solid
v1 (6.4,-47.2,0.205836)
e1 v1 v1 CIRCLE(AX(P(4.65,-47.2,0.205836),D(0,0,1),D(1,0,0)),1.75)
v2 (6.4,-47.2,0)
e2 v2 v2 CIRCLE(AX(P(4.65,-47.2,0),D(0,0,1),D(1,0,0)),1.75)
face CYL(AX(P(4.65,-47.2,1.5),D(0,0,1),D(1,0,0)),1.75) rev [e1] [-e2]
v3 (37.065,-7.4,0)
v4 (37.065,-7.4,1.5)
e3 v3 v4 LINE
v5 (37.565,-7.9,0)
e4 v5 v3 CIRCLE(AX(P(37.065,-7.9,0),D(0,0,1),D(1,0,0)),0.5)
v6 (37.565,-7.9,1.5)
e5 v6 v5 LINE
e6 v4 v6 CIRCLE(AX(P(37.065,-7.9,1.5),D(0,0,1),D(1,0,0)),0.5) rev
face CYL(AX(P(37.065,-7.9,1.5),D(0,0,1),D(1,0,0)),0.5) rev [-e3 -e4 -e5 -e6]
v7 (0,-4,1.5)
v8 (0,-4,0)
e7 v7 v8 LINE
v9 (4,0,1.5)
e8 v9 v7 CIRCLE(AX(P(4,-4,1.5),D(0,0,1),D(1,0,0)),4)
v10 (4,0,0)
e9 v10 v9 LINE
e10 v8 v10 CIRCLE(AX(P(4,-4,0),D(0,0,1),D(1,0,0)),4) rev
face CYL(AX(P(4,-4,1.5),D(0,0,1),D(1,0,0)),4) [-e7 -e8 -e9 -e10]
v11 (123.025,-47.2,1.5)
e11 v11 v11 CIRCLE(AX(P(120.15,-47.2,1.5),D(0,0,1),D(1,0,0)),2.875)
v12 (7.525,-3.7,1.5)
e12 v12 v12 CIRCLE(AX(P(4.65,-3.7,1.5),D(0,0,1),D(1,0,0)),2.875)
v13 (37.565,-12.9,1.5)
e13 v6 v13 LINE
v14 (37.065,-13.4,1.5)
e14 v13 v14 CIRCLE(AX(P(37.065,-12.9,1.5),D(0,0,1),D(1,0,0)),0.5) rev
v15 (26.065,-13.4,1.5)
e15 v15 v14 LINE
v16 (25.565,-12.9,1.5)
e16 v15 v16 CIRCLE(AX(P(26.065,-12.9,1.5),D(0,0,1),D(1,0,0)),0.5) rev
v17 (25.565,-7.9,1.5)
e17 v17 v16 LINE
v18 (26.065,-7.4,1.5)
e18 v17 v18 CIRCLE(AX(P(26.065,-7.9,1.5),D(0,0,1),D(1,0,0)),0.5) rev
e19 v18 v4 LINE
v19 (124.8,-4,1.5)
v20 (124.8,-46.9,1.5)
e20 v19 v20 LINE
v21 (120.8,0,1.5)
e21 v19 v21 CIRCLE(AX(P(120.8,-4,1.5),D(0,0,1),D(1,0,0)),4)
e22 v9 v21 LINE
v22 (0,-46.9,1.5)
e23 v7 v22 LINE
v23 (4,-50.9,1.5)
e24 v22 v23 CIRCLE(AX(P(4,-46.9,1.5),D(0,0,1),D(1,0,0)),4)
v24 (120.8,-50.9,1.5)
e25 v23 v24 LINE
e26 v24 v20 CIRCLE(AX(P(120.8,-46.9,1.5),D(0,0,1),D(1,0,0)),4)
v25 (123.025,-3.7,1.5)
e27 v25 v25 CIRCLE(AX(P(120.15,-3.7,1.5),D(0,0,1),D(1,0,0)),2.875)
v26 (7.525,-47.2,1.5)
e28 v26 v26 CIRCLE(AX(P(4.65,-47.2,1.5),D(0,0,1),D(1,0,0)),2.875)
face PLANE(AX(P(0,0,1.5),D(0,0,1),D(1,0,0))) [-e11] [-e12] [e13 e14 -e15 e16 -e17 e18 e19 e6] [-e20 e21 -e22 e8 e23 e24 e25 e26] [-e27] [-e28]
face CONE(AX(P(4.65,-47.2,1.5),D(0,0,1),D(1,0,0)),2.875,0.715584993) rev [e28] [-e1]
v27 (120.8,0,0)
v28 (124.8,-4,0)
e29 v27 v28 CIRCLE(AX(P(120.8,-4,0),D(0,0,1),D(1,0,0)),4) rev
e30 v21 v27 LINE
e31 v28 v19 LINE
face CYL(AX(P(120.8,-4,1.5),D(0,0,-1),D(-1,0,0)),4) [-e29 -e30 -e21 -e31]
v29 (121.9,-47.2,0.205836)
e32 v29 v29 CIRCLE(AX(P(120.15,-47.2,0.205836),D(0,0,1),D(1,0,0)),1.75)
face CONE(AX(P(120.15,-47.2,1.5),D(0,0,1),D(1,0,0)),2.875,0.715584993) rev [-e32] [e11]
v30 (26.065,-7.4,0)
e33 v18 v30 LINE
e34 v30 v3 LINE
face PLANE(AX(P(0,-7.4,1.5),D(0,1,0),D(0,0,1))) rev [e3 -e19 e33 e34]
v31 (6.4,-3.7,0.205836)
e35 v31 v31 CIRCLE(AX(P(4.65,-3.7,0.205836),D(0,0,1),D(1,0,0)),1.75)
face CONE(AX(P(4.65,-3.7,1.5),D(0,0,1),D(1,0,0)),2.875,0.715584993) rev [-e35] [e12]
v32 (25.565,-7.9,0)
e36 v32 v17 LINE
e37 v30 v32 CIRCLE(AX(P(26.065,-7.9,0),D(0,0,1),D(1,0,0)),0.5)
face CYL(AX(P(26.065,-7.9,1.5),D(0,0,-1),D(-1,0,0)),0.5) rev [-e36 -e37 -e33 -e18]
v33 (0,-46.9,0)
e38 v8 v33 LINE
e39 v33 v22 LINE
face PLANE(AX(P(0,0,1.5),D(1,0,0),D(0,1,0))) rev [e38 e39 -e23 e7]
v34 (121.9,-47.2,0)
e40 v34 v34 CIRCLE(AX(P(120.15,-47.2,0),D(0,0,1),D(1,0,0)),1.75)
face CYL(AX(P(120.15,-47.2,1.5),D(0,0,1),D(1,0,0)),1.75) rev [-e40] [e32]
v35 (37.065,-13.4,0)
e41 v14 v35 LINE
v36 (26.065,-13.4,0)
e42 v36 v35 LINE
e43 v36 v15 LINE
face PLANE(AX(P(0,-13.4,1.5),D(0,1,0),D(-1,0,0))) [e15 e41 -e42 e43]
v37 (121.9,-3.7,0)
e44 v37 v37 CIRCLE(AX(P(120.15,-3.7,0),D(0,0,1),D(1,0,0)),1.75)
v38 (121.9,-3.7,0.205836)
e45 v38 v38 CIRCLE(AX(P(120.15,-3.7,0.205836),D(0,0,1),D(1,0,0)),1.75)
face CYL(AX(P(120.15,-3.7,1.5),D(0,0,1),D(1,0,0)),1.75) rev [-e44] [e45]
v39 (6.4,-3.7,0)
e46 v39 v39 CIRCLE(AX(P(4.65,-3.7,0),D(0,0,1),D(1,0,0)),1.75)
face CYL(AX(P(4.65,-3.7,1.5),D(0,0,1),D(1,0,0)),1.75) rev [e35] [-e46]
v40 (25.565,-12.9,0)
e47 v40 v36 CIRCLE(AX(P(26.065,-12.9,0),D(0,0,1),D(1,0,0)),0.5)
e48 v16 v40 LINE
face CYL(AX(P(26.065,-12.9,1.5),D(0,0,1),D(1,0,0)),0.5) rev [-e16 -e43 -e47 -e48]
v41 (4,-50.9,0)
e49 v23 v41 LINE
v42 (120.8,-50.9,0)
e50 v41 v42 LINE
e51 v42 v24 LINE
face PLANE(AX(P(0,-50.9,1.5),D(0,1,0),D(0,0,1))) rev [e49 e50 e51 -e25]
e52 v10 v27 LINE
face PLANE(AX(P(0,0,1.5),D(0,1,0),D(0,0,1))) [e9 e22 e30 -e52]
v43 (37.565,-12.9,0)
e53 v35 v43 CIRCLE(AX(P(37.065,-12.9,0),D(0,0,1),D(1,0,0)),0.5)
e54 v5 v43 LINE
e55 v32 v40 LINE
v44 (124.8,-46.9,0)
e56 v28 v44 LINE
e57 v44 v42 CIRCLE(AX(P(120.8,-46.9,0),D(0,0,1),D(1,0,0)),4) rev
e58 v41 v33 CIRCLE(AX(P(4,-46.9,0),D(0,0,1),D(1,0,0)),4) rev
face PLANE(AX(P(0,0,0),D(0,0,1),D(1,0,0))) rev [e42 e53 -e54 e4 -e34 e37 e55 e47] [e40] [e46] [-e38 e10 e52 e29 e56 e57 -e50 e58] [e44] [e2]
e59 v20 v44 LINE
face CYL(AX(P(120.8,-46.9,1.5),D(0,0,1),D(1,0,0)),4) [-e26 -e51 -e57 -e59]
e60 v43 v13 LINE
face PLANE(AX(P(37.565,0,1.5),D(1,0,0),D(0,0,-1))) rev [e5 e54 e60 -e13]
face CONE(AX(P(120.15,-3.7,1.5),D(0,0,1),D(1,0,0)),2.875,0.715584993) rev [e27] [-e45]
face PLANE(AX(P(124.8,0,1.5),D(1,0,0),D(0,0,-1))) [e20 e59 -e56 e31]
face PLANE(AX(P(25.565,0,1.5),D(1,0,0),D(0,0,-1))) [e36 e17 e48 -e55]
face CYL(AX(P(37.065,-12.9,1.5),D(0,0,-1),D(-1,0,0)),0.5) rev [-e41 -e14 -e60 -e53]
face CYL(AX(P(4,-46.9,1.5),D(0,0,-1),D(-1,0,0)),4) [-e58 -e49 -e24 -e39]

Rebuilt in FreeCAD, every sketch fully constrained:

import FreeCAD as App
import Part
import Sketcher
from FreeCAD import Vector
Q = App.Units.Quantity


def edges_at(feature, points):
    """Names of the edges that pass closest to the given points."""
    edges = feature.Shape.Edges
    near = lambda p: min(range(len(edges)), key=lambda i: edges[i].distToShape(Part.Vertex(*p))[0])
    return sorted({f"Edge{near(p) + 1}" for p in points})


def add_polygon(sketch, points):
    """Adds a closed chain of lines whose ends are joined by coincident constraints."""
    first, n = sketch.GeometryCount, len(points)
    for a, b in zip(points, points[1:] + points[:1]):
        sketch.addGeometry(Part.LineSegment(App.Vector(*a, 0), App.Vector(*b, 0)), False)
    for i in range(n):
        sketch.addConstraint(Sketcher.Constraint("Coincident", first + i, 2, first + (i + 1) % n, 1))

doc = App.newDocument("Part")
body = doc.addObject("PartDesign::Body", "Body")

# Sketch on XY plane
sketch1 = body.newObject("Sketcher::SketchObject", "Sketch")
sketch1.AttachmentSupport = (doc.getObject("XY_Plane"), [""])
sketch1.MapMode = "FlatFace"
add_polygon(sketch1, [(0, 0), (0, -51), (125, -51), (125, 0)])  # lines 0-3
add_polygon(sketch1, [(38, -13), (26, -13), (26, -7), (38, -7)])  # lines 4-7
sketch1.addConstraint(Sketcher.Constraint("Vertical", 0))
sketch1.addConstraint(Sketcher.Constraint("Horizontal", 1))
sketch1.addConstraint(Sketcher.Constraint("Vertical", 2))
sketch1.addConstraint(Sketcher.Constraint("Horizontal", 3))
sketch1.addConstraint(Sketcher.Constraint("Horizontal", 4))
sketch1.addConstraint(Sketcher.Constraint("Vertical", 5))
sketch1.addConstraint(Sketcher.Constraint("Horizontal", 6))
sketch1.addConstraint(Sketcher.Constraint("Vertical", 7))
sketch1.addConstraint(Sketcher.Constraint("Coincident", 3, 2, -1, 1))
sketch1.addConstraint(Sketcher.Constraint("DistanceX", 4, 2, 4, 1, Q("12 mm")))
sketch1.addConstraint(Sketcher.Constraint("DistanceY", 5, 1, 5, 2, Q("6 mm")))
sketch1.addConstraint(Sketcher.Constraint("DistanceX", 1, 1, 1, 2, Q("124.8 mm")))
sketch1.addConstraint(Sketcher.Constraint("DistanceY", 0, 2, 0, 1, Q("50.9 mm")))
sketch1.addConstraint(Sketcher.Constraint("DistanceY", 4, 2, -1, 1, Q("13.4 mm")))
sketch1.addConstraint(Sketcher.Constraint("DistanceX", -1, 1, 4, 2, Q("25.565 mm")))
pad1 = body.newObject("PartDesign::Pad", "Pad")
pad1.Profile = sketch1
pad1.Length = 1.5

# Sketch on YZ plane
sketch2 = body.newObject("Sketcher::SketchObject", "Sketch001")
sketch2.AttachmentSupport = (doc.getObject("YZ_Plane"), [""])
sketch2.MapMode = "FlatFace"
sketch2.AttachmentOffset = App.Placement(Vector(0, 0, 4.65), App.Rotation())
add_polygon(sketch2, [(-3.7, 0), (-3.7, 1.5), (-6.58, 1.5), (-5.45, 0.21), (-5.45, 0)])  # lines 0-4
sketch2.addGeometry(Part.LineSegment(Vector(-3.7, 1.5, 0), Vector(-3.7, 0, 0)), True)  # axis
sketch2.addConstraint(Sketcher.Constraint("Vertical", 0))
sketch2.addConstraint(Sketcher.Constraint("Horizontal", 1))
sketch2.addConstraint(Sketcher.Constraint("Vertical", 3))
sketch2.addConstraint(Sketcher.Constraint("Horizontal", 4))
sketch2.addConstraint(Sketcher.Constraint("Vertical", 5))
sketch2.addConstraint(Sketcher.Constraint("Coincident", 5, 1, 0, 2))
sketch2.addConstraint(Sketcher.Constraint("PointOnObject", 3, 2, -1))
sketch2.addConstraint(Sketcher.Constraint("PointOnObject", 5, 2, -1))
sketch2.addConstraint(Sketcher.Constraint("Angle", 2, Q("-49 deg")))
sketch2.addConstraint(Sketcher.Constraint("DistanceY", 0, 1, 0, 2, Q("1.5 mm")))
sketch2.addConstraint(Sketcher.Constraint("DistanceX", 4, 1, 4, 2, Q("1.75 mm")))
sketch2.addConstraint(Sketcher.Constraint("DistanceX", 0, 2, -1, 1, Q("3.7 mm")))
sketch2.addConstraint(Sketcher.Constraint("DistanceX", 1, 2, 1, 1, Q("2.875 mm")))
groove = body.newObject("PartDesign::Groove", "Groove")
groove.Profile = sketch2
groove.ReferenceAxis = (sketch2, ["Axis0"])
groove.Angle = 360
doc.recompute()

linearpattern = body.newObject("PartDesign::LinearPattern", "LinearPattern")
linearpattern.Originals = [groove]
linearpattern.Direction = (doc.getObject("X_Axis"), [""])
linearpattern.Mode = "offset"
linearpattern.Offset = 115.5
linearpattern.Occurrences = 2
body.Tip = linearpattern
doc.recompute()

datumline = body.newObject("PartDesign::Line", "DatumLine")
datumline.Placement = App.Placement(Vector(0, 0, 0), App.Rotation(Vector(0, 0, 1), Vector(0.935828766, -0.35245499, 0)))
linearpattern2 = body.newObject("PartDesign::LinearPattern", "LinearPattern001")
linearpattern2.Originals = [groove]
linearpattern2.Direction = (datumline, [""])
linearpattern2.Mode = "offset"
linearpattern2.Offset = 123.420015
linearpattern2.Occurrences = 2
body.Tip = linearpattern2
doc.recompute()

linearpattern3 = body.newObject("PartDesign::LinearPattern", "LinearPattern002")
linearpattern3.Originals = [groove]
linearpattern3.Direction = (doc.getObject("Y_Axis"), [""])
linearpattern3.Mode = "offset"
linearpattern3.Offset = 43.5
linearpattern3.Occurrences = 2
linearpattern3.Reversed = True
body.Tip = linearpattern3
doc.recompute()

fillet = body.newObject("PartDesign::Fillet", "Fillet")
fillet.Base = (linearpattern3, edges_at(linearpattern3, [
    (124.8, -50.9, 0.75),
    (0, -50.9, 0.75),
    (0, 0, 0.75),
    (124.8, 0, 0.75),
]))
fillet.Radius = 4
doc.recompute()

fillet2 = body.newObject("PartDesign::Fillet", "Fillet001")
fillet2.Base = (fillet, edges_at(fillet, [
    (25.565, -7.4, 0.75),
    (25.565, -13.4, 0.75),
    (37.565, -13.4, 0.75),
    (37.565, -7.4, 0.75),
]))
fillet2.Radius = 0.5

doc.recompute()
